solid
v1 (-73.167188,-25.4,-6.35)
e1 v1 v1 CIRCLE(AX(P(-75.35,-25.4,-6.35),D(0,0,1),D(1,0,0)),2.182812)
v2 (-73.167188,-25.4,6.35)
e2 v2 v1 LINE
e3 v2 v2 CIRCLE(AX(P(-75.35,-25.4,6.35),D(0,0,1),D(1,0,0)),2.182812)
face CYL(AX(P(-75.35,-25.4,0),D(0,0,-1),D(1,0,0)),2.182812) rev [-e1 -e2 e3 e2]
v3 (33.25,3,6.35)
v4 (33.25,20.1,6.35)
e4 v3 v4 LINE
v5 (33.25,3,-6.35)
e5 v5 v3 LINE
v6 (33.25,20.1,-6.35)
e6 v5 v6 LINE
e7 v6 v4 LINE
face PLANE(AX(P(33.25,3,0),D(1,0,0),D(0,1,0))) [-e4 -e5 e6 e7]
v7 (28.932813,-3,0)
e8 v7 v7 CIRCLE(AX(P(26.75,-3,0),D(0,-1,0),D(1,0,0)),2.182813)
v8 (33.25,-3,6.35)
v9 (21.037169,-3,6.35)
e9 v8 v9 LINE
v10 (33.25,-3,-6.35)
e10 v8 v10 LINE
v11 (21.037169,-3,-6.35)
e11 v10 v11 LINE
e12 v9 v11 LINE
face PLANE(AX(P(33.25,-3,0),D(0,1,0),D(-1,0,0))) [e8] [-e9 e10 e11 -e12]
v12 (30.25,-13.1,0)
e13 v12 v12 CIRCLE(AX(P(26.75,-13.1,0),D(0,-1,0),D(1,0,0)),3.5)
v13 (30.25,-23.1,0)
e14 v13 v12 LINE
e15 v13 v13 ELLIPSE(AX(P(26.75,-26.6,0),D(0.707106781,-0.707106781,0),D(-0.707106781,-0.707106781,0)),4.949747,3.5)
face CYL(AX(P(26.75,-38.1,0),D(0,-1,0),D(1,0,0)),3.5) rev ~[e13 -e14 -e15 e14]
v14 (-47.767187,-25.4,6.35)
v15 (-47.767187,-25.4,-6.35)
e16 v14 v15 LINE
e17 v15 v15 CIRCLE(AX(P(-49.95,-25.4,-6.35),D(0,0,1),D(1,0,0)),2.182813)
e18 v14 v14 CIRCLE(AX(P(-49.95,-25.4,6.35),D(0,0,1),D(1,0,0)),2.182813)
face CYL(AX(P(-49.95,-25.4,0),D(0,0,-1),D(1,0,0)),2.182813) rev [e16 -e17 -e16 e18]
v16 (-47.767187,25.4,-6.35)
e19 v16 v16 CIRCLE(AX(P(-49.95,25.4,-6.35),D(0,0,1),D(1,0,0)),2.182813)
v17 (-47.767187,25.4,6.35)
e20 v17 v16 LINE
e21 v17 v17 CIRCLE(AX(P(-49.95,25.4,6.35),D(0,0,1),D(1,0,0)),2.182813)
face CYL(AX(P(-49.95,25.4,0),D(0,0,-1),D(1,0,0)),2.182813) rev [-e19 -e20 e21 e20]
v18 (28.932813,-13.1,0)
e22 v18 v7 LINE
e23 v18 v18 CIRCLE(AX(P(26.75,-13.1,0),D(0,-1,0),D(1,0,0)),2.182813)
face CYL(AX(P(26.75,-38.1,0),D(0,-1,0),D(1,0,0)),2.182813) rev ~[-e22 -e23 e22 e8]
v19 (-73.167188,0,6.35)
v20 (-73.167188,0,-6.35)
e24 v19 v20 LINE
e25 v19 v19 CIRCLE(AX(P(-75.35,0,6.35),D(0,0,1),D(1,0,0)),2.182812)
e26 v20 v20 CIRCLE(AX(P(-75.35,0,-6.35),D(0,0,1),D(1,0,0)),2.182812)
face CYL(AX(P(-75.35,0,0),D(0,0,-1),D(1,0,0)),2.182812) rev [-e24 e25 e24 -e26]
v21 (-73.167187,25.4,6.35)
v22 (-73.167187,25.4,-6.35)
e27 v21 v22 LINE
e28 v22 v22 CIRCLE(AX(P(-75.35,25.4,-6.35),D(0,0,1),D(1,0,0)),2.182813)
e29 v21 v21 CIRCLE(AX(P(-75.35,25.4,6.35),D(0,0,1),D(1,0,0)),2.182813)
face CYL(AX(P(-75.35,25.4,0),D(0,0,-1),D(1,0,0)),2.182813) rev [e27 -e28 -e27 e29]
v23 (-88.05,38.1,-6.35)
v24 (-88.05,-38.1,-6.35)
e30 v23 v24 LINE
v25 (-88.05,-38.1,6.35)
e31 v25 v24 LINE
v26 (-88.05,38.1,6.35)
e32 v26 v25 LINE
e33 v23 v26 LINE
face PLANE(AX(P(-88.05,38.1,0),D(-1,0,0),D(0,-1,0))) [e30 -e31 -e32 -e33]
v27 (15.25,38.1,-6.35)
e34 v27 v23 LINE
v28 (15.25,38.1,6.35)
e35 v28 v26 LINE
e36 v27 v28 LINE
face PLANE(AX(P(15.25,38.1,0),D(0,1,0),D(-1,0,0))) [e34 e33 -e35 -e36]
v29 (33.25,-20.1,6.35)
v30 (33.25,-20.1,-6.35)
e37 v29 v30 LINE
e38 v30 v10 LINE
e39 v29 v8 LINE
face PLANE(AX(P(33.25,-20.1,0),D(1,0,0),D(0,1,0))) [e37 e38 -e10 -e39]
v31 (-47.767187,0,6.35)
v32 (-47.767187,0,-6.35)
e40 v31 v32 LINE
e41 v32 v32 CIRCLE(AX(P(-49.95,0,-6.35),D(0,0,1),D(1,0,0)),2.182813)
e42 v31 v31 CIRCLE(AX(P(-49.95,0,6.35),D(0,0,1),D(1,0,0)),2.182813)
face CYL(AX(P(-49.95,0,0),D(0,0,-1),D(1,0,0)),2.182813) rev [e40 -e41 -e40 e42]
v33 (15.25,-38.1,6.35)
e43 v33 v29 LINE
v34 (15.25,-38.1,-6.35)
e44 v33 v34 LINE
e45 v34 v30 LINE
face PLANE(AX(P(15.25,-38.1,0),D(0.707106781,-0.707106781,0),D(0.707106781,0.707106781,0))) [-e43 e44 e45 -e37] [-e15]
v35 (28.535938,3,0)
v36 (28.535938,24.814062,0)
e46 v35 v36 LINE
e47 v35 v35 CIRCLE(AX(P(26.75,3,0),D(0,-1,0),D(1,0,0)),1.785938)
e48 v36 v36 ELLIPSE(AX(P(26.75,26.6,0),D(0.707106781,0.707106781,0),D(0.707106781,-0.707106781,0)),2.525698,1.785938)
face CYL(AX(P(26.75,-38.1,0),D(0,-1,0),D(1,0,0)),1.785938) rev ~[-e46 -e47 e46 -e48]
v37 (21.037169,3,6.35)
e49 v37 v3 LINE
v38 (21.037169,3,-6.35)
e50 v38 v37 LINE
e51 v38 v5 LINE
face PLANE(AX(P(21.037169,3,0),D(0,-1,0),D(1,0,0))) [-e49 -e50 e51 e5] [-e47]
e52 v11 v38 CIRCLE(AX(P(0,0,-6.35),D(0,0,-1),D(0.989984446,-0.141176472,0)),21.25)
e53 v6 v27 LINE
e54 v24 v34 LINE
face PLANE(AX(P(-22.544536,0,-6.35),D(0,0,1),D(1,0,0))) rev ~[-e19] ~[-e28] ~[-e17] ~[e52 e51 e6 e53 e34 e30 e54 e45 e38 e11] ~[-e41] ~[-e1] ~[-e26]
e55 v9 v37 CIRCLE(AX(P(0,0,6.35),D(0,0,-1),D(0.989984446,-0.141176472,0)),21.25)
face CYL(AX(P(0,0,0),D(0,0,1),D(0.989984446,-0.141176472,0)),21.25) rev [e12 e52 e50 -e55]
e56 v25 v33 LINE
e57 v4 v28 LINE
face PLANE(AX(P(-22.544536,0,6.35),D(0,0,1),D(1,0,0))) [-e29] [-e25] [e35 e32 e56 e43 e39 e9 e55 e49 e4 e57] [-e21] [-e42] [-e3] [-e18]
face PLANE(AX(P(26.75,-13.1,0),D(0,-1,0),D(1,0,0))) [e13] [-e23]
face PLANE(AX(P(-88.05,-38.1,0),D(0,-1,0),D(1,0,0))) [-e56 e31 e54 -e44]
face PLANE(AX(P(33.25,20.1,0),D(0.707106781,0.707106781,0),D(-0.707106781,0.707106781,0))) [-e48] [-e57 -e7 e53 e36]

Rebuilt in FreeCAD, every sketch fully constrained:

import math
import FreeCAD as App
import Part
import Sketcher
from FreeCAD import Vector

doc = App.newDocument("Part")
params = doc.addObject("Spreadsheet::Sheet", "Params")
for row, (alias, value) in enumerate([
    ("sketch1_radius", "21.25 mm"),
    ("sketch1_width", "103.3 mm"),
    ("sketch1_height", "17.1 mm"),
    ("sketch1_height2", "76.2 mm"),
    ("pad1_length", "12.7 mm"),
    ("sketch2_diameter", "7 mm"),
    ("pocket1_length", "25 mm"),
    ("pocket2_length", "35.1 mm"),
], start=1):
    params.set(f"A{row}", alias)
    params.set(f"B{row}", "=" + value)
    params.setAlias(f"B{row}", alias)

body = doc.addObject("PartDesign::Body", "Body")

sketch1 = body.newObject("Sketcher::SketchObject", "Sketch")
sketch1.AttachmentSupport = (doc.getObject("XY_Plane"), [""])
sketch1.MapMode = "FlatFace"
sketch1.addGeometry([
    Part.ArcOfCircle(Part.Circle(Vector(0, 0, 0), Vector(0, 0, 1), 21.25), math.radians(8.115929), math.radians(351.884071)),
    Part.LineSegment(Vector(21.037169, 3, 0), Vector(33.25, 3, 0)),
    Part.LineSegment(Vector(33.25, 3, 0), Vector(33.25, 20.1, 0)),
    Part.LineSegment(Vector(33.25, 20.1, 0), Vector(15.25, 38.1, 0)),
    Part.LineSegment(Vector(15.25, 38.1, 0), Vector(-88.05, 38.1, 0)),
    Part.LineSegment(Vector(-88.05, 38.1, 0), Vector(-88.05, -38.1, 0)),
    Part.LineSegment(Vector(-88.05, -38.1, 0), Vector(15.25, -38.1, 0)),
    Part.LineSegment(Vector(15.25, -38.1, 0), Vector(33.25, -20.1, 0)),
    Part.LineSegment(Vector(33.25, -20.1, 0), Vector(33.25, -3, 0)),
    Part.LineSegment(Vector(33.25, -3, 0), Vector(21.037169, -3, 0)),
    Part.Circle(Vector(-75.35, -25.4, 0), Vector(0, 0, 1), 2.182812),
    Part.Circle(Vector(-49.95, -25.4, 0), Vector(0, 0, 1), 2.182813),
    Part.Circle(Vector(-75.35, 0, 0), Vector(0, 0, 1), 2.182812),
    Part.Circle(Vector(-75.35, 25.4, 0), Vector(0, 0, 1), 2.182813),
    Part.Circle(Vector(-49.95, 0, 0), Vector(0, 0, 1), 2.182813),
    Part.Circle(Vector(-49.95, 25.4, 0), Vector(0, 0, 1), 2.182813),
], False)
sketch1.addConstraint([
    Sketcher.Constraint("Coincident", 0, 1, 1, 1),
    Sketcher.Constraint("Coincident", 1, 2, 2, 1),
    Sketcher.Constraint("Coincident", 2, 2, 3, 1),
    Sketcher.Constraint("Coincident", 3, 2, 4, 1),
    Sketcher.Constraint("Coincident", 4, 2, 5, 1),
    Sketcher.Constraint("Coincident", 5, 2, 6, 1),
    Sketcher.Constraint("Coincident", 6, 2, 7, 1),
    Sketcher.Constraint("Coincident", 7, 2, 8, 1),
    Sketcher.Constraint("Coincident", 8, 2, 9, 1),
    Sketcher.Constraint("Coincident", 9, 2, 0, 2),
    Sketcher.Constraint("Horizontal", 1),
    Sketcher.Constraint("Vertical", 2),
    Sketcher.Constraint("Horizontal", 4),
    Sketcher.Constraint("Vertical", 5),
    Sketcher.Constraint("Horizontal", 6),
    Sketcher.Constraint("Vertical", 8),
    Sketcher.Constraint("Horizontal", 9),
    Sketcher.Constraint("Coincident", 0, 3, -1, 1),
    Sketcher.Constraint("Equal", 10, 11),
    Sketcher.Constraint("Equal", 11, 12),
    Sketcher.Constraint("Equal", 12, 13),
    Sketcher.Constraint("Equal", 13, 14),
    Sketcher.Constraint("Equal", 14, 15),
    Sketcher.Constraint("Symmetric", 10, 3, 13, 3, -1),
    Sketcher.Constraint("Symmetric", 11, 3, 15, 3, -1),
    Sketcher.Constraint("Symmetric", 3, 2, 6, 2, -1),
    Sketcher.Constraint("Symmetric", 2, 2, 7, 2, -1),
    Sketcher.Constraint("PointOnObject", 12, 3, -1),
    Sketcher.Constraint("PointOnObject", 14, 3, -1),
    Sketcher.Constraint("Perpendicular", 3, 7),
    Sketcher.Constraint("Horizontal", 10, 3, 11, 3),
    Sketcher.Constraint("Vertical", 10, 3, 12, 3),
    Sketcher.Constraint("Vertical", 11, 3, 14, 3),
    Sketcher.Constraint("Vertical", 0, 1, 9, 2),
    Sketcher.Constraint("Radius", 0, 21.25),
    Sketcher.Constraint("DistanceX", 4, 2, 4, 1, 103.3),
    Sketcher.Constraint("DistanceY", 2, 1, 2, 2, 17.1),
    Sketcher.Constraint("DistanceY", 5, 2, 5, 1, 76.2),
    Sketcher.Constraint("DistanceY", -1, 1, 0, 1, 3.0),
    Sketcher.Constraint("DistanceY", 10, 3, -1, 1, 25.4),
    Sketcher.Constraint("DistanceX", 10, 3, 11, 3, 25.4),
    Sketcher.Constraint("DistanceX", 14, 3, 1, 2, 83.2),
    Sketcher.Constraint("DistanceX", 10, 3, -1, 1, 75.35),
    Sketcher.Constraint("Diameter", 10, 4.365624),
])
sketch1.setExpression("Constraints[34]", "Params.sketch1_radius")
sketch1.setExpression("Constraints[35]", "Params.sketch1_width")
sketch1.setExpression("Constraints[36]", "Params.sketch1_height")
sketch1.setExpression("Constraints[37]", "Params.sketch1_height2")
pad1 = body.newObject("PartDesign::Pad", "Pad")
pad1.Profile = sketch1
pad1.setExpression("Length", "Params.pad1_length")
pad1.Midplane = True

sketch2 = body.newObject("Sketcher::SketchObject", "Sketch001")
sketch2.AttachmentSupport = (doc.getObject("XZ_Plane"), [""])
sketch2.MapMode = "FlatFace"
sketch2.AttachmentOffset = App.Placement(Vector(0, 0, 38.1), App.Rotation())
sketch2.addGeometry([
    Part.Circle(Vector(26.75, 0, 0), Vector(0, 0, 1), 3.5),
    Part.Circle(Vector(26.75, 0, 0), Vector(0, 0, 1), 2.182813),
], False)
sketch2.addConstraint([
    Sketcher.Constraint("Coincident", 1, 3, 0, 3),
    Sketcher.Constraint("PointOnObject", 0, 3, -1),
    Sketcher.Constraint("Diameter", 0, 7.0),
    Sketcher.Constraint("DistanceX", -1, 1, 0, 3, 26.75),
    Sketcher.Constraint("Diameter", 1, 4.365626),
])
sketch2.setExpression("Constraints[2]", "Params.sketch2_diameter")
pocket1 = body.newObject("PartDesign::Pocket", "Pocket")
pocket1.Profile = sketch2
pocket1.setExpression("Length", "Params.pocket1_length")

sketch3 = body.newObject("Sketcher::SketchObject", "Sketch002")
sketch3.AttachmentSupport = (doc.getObject("XZ_Plane"), [""])
sketch3.MapMode = "FlatFace"
sketch3.AttachmentOffset = App.Placement(Vector(0, 0, 38.1), App.Rotation())
sketch3.addGeometry(Part.Circle(Vector(26.75, 0, 0), Vector(0, 0, 1), 2.182813), False)
sketch3.addConstraint([
    Sketcher.Constraint("PointOnObject", 0, 3, -1),
    Sketcher.Constraint("DistanceX", -1, 1, 0, 3, 26.75),
    Sketcher.Constraint("Diameter", 0, 4.365626),
])
pocket2 = body.newObject("PartDesign::Pocket", "Pocket001")
pocket2.Profile = sketch3
pocket2.setExpression("Length", "Params.pocket2_length")

sketch4 = body.newObject("Sketcher::SketchObject", "Sketch003")
sketch4.AttachmentSupport = (doc.getObject("XZ_Plane"), [""])
sketch4.MapMode = "FlatFace"
sketch4.AttachmentOffset = App.Placement(Vector(0, 0, 38.1), App.Rotation())
sketch4.addGeometry(Part.Circle(Vector(26.75, 0, 0), Vector(0, 0, 1), 1.785938), False)
sketch4.addConstraint([
    Sketcher.Constraint("PointOnObject", 0, 3, -1),
    Sketcher.Constraint("DistanceX", -1, 1, 0, 3, 26.75),
    Sketcher.Constraint("Diameter", 0, 3.571876),
])
pocket3 = body.newObject("PartDesign::Pocket", "Pocket002")
pocket3.Profile = sketch4
pocket3.Type = "ThroughAll"

doc.recompute()
